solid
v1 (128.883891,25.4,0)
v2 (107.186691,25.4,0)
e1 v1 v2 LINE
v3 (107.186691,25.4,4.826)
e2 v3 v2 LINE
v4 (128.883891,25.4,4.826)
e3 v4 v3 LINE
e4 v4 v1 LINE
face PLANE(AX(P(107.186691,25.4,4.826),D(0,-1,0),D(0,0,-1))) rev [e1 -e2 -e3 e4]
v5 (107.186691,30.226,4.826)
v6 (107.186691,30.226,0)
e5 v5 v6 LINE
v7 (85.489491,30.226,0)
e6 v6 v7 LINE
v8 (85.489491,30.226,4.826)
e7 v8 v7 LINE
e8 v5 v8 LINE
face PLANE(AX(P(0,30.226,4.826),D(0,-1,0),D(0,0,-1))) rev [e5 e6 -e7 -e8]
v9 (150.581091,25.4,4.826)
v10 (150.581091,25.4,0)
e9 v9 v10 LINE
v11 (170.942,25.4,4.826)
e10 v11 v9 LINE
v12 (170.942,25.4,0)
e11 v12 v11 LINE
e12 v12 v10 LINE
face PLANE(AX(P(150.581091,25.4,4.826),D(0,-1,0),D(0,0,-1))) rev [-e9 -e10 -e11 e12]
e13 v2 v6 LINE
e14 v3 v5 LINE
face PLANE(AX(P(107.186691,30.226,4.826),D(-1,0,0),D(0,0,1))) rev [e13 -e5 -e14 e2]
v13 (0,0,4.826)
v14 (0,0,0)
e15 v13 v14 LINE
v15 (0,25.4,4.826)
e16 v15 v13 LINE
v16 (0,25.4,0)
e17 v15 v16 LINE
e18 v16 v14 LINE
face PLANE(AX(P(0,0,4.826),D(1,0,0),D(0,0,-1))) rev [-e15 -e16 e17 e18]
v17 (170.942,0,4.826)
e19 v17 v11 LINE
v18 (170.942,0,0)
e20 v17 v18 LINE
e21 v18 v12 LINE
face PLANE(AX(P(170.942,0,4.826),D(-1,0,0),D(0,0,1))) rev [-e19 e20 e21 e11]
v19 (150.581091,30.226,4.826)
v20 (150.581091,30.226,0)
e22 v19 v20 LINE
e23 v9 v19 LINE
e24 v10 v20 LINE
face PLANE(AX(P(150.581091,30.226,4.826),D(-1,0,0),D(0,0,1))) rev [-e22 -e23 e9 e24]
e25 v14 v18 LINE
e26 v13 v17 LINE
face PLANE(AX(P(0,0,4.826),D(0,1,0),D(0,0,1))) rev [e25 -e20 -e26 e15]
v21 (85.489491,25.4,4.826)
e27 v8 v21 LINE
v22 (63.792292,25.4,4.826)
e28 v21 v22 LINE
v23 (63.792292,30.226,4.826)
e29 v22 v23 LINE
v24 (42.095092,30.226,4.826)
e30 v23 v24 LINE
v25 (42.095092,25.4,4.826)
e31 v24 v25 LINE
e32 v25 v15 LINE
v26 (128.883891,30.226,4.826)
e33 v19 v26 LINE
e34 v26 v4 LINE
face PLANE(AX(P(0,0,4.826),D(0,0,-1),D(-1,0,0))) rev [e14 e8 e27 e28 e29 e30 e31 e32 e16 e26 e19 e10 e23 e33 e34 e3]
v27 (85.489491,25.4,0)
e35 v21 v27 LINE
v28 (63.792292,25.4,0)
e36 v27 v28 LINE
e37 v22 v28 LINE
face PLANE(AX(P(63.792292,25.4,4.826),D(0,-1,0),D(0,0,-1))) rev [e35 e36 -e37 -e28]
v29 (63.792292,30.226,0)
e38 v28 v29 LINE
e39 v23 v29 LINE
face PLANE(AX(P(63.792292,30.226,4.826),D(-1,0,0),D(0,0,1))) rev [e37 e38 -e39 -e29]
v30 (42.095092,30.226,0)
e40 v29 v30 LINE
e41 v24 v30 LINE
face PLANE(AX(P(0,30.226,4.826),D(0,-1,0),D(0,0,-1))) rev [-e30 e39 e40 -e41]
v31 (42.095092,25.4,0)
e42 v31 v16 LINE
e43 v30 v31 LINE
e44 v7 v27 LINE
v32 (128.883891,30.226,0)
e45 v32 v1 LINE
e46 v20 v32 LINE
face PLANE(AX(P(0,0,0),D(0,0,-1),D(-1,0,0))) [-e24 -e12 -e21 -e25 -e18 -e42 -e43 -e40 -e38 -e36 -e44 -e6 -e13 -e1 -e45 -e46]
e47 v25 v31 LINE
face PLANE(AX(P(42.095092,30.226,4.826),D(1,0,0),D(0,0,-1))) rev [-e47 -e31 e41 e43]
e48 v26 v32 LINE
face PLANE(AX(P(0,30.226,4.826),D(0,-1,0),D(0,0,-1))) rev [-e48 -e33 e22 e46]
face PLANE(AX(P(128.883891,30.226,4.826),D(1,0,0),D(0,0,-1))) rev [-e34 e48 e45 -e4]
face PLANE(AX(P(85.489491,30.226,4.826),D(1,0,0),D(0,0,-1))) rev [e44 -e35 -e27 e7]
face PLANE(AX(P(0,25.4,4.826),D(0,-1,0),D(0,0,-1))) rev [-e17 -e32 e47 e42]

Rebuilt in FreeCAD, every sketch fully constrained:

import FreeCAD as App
import Part
import Sketcher
Q = App.Units.Quantity


def add_polygon(sketch, points):
    """Adds a closed chain of lines whose ends are joined by coincident constraints."""
    first, n = sketch.GeometryCount, len(points)
    for a, b in zip(points, points[1:] + points[:1]):
        sketch.addGeometry(Part.LineSegment(App.Vector(*a, 0), App.Vector(*b, 0)), False)
    for i in range(n):
        sketch.addConstraint(Sketcher.Constraint("Coincident", first + i, 2, first + (i + 1) % n, 1))

doc = App.newDocument("Part")
body = doc.addObject("PartDesign::Body", "Body")

# Sketch on XY plane
sketch1 = body.newObject("Sketcher::SketchObject", "Sketch")
sketch1.AttachmentSupport = (doc.getObject("XY_Plane"), [""])
sketch1.MapMode = "FlatFace"
add_polygon(sketch1, [(0, 30), (0, 0), (171, 0), (171, 30)])  # lines 0-3
sketch1.addConstraint([
    Sketcher.Constraint("Vertical", 0),
    Sketcher.Constraint("Horizontal", 1),
    Sketcher.Constraint("Vertical", 2),
    Sketcher.Constraint("Horizontal", 3),
    Sketcher.Constraint("Coincident", 0, 2, -1, 1),
    Sketcher.Constraint("DistanceX", 1, 1, 1, 2, Q("6.73 in")),
    Sketcher.Constraint("DistanceY", 0, 2, 0, 1, Q("1.19 in")),
])
pad1 = body.newObject("PartDesign::Pad", "Pad")
pad1.Profile = sketch1
pad1.Length = Q("0.19 in")

# Sketch on XY plane
sketch2 = body.newObject("Sketcher::SketchObject", "Sketch001")
sketch2.AttachmentSupport = (doc.getObject("XY_Plane"), [""])
sketch2.MapMode = "FlatFace"
add_polygon(sketch2, [(42.1, 30.2), (42.1, 25.4), (0, 25.4), (0, 30.2)])  # lines 0-3
add_polygon(sketch2, [(85.5, 30.2), (85.5, 25.4), (63.8, 25.4), (63.8, 30.2)])  # lines 4-7
add_polygon(sketch2, [(128.9, 30.2), (128.9, 25.4), (107.2, 25.4), (107.2, 30.2)])  # lines 8-11
add_polygon(sketch2, [(171, 30.2), (171, 25.4), (150.6, 25.4), (150.6, 30.2)])  # lines 12-15
sketch2.addConstraint([
    Sketcher.Constraint("Vertical", 0),
    Sketcher.Constraint("Horizontal", 1),
    Sketcher.Constraint("Vertical", 2),
    Sketcher.Constraint("Horizontal", 3),
    Sketcher.Constraint("Vertical", 4),
    Sketcher.Constraint("Horizontal", 5),
    Sketcher.Constraint("Vertical", 6),
    Sketcher.Constraint("Horizontal", 7),
    Sketcher.Constraint("Vertical", 8),
    Sketcher.Constraint("Horizontal", 9),
    Sketcher.Constraint("Vertical", 10),
    Sketcher.Constraint("Horizontal", 11),
    Sketcher.Constraint("Vertical", 12),
    Sketcher.Constraint("Horizontal", 13),
    Sketcher.Constraint("Vertical", 14),
    Sketcher.Constraint("Horizontal", 15),
    Sketcher.Constraint("PointOnObject", 1, 2, -2),
    Sketcher.Constraint("Horizontal", 1, 2, 4, 2),
    Sketcher.Constraint("Horizontal", 3, 2, 6, 2),
    Sketcher.Constraint("Horizontal", 5, 2, 8, 2),
    Sketcher.Constraint("Horizontal", 7, 2, 10, 2),
    Sketcher.Constraint("Horizontal", 9, 2, 12, 2),
    Sketcher.Constraint("Horizontal", 11, 2, 14, 2),
    Sketcher.Constraint("Equal", 7, 9),
    Sketcher.Constraint("DistanceY", -1, 1, 0, 2, Q("1 in")),
    Sketcher.Constraint("DistanceY", 0, 2, 0, 1, Q("0.19 in")),
    Sketcher.Constraint("DistanceX", 5, 2, 5, 1, 21.6972),
    Sketcher.Constraint("DistanceX", 1, 2, 1, 1, 42.095092),
    Sketcher.Constraint("DistanceX", 0, 2, 4, 2, 43.3944),
    Sketcher.Constraint("DistanceX", 4, 2, 8, 2, 43.3944),
    Sketcher.Constraint("DistanceX", 8, 2, 13, 2, 21.6972),
    Sketcher.Constraint("DistanceX", 13, 2, 13, 1, 20.397892),
])
pocket1 = body.newObject("PartDesign::Pocket", "Pocket")
pocket1.Profile = sketch2
pocket1.Type = "ThroughAll"
pocket1.Reversed = True

doc.recompute()
